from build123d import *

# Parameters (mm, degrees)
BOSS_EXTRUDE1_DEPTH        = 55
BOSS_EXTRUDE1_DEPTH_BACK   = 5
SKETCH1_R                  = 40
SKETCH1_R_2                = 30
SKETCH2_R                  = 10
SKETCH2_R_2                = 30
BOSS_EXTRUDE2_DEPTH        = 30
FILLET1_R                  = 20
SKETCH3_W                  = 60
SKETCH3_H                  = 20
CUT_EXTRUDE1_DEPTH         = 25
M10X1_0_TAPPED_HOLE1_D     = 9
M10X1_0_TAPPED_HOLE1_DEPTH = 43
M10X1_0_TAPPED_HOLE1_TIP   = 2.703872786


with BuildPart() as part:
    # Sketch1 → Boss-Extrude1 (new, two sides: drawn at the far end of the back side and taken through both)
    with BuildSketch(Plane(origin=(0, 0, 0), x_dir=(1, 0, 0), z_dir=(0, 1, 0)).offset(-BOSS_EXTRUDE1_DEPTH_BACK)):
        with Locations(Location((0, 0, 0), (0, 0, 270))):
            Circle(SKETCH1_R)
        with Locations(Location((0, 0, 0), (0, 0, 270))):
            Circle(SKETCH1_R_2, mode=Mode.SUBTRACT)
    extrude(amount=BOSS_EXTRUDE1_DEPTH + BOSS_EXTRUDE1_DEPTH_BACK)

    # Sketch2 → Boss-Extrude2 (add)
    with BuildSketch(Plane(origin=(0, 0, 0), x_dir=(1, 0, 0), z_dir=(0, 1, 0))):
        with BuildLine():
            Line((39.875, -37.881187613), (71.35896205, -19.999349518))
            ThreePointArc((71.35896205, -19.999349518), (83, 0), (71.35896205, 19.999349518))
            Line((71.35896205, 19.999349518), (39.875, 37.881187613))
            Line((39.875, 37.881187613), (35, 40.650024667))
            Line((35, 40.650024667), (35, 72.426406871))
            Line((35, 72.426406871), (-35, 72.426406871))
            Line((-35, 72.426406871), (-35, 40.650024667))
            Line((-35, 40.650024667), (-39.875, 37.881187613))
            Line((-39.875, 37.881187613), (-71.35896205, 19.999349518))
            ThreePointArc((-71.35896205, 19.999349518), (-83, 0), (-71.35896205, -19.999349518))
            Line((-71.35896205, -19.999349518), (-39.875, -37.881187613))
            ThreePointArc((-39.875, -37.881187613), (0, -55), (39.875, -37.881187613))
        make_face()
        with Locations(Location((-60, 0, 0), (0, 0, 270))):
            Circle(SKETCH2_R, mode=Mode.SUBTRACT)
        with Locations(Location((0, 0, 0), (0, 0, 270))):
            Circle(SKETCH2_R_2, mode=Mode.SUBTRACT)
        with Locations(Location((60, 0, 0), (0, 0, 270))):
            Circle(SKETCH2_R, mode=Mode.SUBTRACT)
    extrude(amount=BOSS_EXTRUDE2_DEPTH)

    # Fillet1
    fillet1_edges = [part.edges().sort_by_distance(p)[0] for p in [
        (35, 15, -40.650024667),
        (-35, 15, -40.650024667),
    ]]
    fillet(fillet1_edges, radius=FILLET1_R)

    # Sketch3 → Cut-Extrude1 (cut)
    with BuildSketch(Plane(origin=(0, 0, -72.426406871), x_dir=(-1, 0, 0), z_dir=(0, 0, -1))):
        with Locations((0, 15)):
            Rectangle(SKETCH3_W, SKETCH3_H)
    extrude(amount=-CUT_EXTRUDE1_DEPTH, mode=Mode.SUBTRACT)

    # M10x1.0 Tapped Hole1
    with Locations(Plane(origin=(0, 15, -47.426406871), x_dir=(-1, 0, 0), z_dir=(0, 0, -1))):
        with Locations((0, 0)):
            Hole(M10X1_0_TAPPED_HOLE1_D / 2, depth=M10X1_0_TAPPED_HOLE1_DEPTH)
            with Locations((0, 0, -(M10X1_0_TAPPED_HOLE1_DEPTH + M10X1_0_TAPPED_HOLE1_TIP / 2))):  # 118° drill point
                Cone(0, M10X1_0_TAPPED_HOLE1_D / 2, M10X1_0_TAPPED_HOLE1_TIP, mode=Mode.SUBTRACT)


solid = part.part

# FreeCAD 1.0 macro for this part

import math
import FreeCAD as App
import Part
import Sketcher

V = App.Vector
Q = App.Units.Quantity


def edges_at(feature, points):
    """Names of the edges that pass closest to the given points."""
    edges = feature.Shape.Edges
    near = lambda p: min(range(len(edges)), key=lambda i: edges[i].distToShape(Part.Vertex(*p))[0])
    return sorted({f"Edge{near(p) + 1}" for p in points})


def add_polygon(sketch, points):
    """Adds a closed chain of lines whose ends are joined by coincident constraints."""
    first, n = sketch.GeometryCount, len(points)
    for a, b in zip(points, points[1:] + points[:1]):
        sketch.addGeometry(Part.LineSegment(App.Vector(*a, 0), App.Vector(*b, 0)), False)
    for i in range(n):
        sketch.addConstraint(Sketcher.Constraint("Coincident", first + i, 2, first + (i + 1) % n, 1))

doc = App.newDocument("Part")
body = doc.addObject("PartDesign::Body", "Body")

# Sketch on XZ plane
sketch1 = doc.addObject("Sketcher::SketchObject", "Sketch")
body.addObject(sketch1)
sketch1.AttachmentSupport = (doc.XZ_Plane, [""])
sketch1.MapMode = "FlatFace"
sketch1.addGeometry([
    Part.Circle(V(0, 0, 0), V(0, 0, 1), 40),
    Part.Circle(V(0, 0, 0), V(0, 0, 1), 30),
], False)
sketch1.addConstraint([
    Sketcher.Constraint("Coincident", 0, 3, -1, 1),
    Sketcher.Constraint("Coincident", 1, 3, -1, 1),
    Sketcher.Constraint("Diameter", 0, Q("80 mm")),
    Sketcher.Constraint("Diameter", 1, Q("60 mm")),
])
pad1 = doc.addObject("PartDesign::Pad", "Pad")
body.addObject(pad1)
pad1.Profile = sketch1
pad1.Type = "TwoLengths"
pad1.Length = 55
pad1.Length2 = 5
pad1.Reversed = True

# Sketch on XZ plane
sketch2 = doc.addObject("Sketcher::SketchObject", "Sketch001")
body.addObject(sketch2)
sketch2.AttachmentSupport = (doc.XZ_Plane, [""])
sketch2.MapMode = "FlatFace"
sketch2.addGeometry([
    Part.LineSegment(V(39.875, 37.881188, 0), V(71.358962, 19.99935, 0)),  # 0
    Part.ArcOfCircle(Part.Circle(V(60, 0, 0), V(0, 0, 1), 23), math.radians(-60.404873), math.radians(60.404873)),  # 1
    Part.LineSegment(V(71.358962, -19.99935, 0), V(39.875, -37.881188, 0)),  # 2
    Part.LineSegment(V(39.875, -37.881188, 0), V(35, -40.650025, 0)),  # 3
    Part.LineSegment(V(35, -40.650025, 0), V(35, -72.426407, 0)),  # 4
    Part.LineSegment(V(35, -72.426407, 0), V(-35, -72.426407, 0)),  # 5
    Part.LineSegment(V(-35, -72.426407, 0), V(-35, -40.650025, 0)),  # 6
    Part.LineSegment(V(-35, -40.650025, 0), V(-39.875, -37.881188, 0)),  # 7
    Part.LineSegment(V(-39.875, -37.881188, 0), V(-71.358962, -19.99935, 0)),  # 8
    Part.ArcOfCircle(Part.Circle(V(-60, 0, 0), V(0, 0, 1), 23), math.radians(119.595127), math.radians(240.404873)),  # 9
    Part.LineSegment(V(-71.358962, 19.99935, 0), V(-39.875, 37.881188, 0)),  # 10
    Part.ArcOfCircle(Part.Circle(V(0, 0, 0), V(0, 0, 1), 55), math.radians(43.531152), math.radians(136.468848)),  # 11
    Part.Circle(V(-60, 0, 0), V(0, 0, 1), 10),  # 12
    Part.Circle(V(0, 0, 0), V(0, 0, 1), 30),  # 13
    Part.Circle(V(60, 0, 0), V(0, 0, 1), 10),  # 14
], False)
sketch2.addConstraint([
    Sketcher.Constraint("Tangent", 0, 2, 1, 2),
    Sketcher.Constraint("Tangent", 1, 1, 2, 1),
    Sketcher.Constraint("Coincident", 2, 2, 3, 1),
    Sketcher.Constraint("Coincident", 3, 2, 4, 1),
    Sketcher.Constraint("Coincident", 4, 2, 5, 1),
    Sketcher.Constraint("Coincident", 5, 2, 6, 1),
    Sketcher.Constraint("Coincident", 6, 2, 7, 1),
    Sketcher.Constraint("Coincident", 7, 2, 8, 1),
    Sketcher.Constraint("Tangent", 8, 2, 9, 2),
    Sketcher.Constraint("Tangent", 9, 1, 10, 1),
    Sketcher.Constraint("Coincident", 10, 2, 11, 2),
    Sketcher.Constraint("Coincident", 11, 1, 0, 1),
    Sketcher.Constraint("Vertical", 4),
    Sketcher.Constraint("Horizontal", 5),
    Sketcher.Constraint("Vertical", 6),
    Sketcher.Constraint("Coincident", 11, 3, -1, 1),
    Sketcher.Constraint("Coincident", 13, 3, -1, 1),
    Sketcher.Constraint("Coincident", 12, 3, 9, 3),
    Sketcher.Constraint("Coincident", 14, 3, 1, 3),
    Sketcher.Constraint("Equal", 1, 9),
    Sketcher.Constraint("Equal", 12, 14),
    Sketcher.Constraint("Symmetric", 1, 3, 9, 3, -1, 1),
    Sketcher.Constraint("Symmetric", 2, 2, 10, 2, -1, 1),
    Sketcher.Constraint("Symmetric", 7, 2, 11, 1, -1, 1),
    Sketcher.Constraint("Symmetric", 3, 2, 6, 2, -2),
    Sketcher.Constraint("Symmetric", 1, 1, 8, 2, -2),
    Sketcher.Constraint("Parallel", 2, 3),
    Sketcher.Constraint("Diameter", 12, Q("20 mm")),
    Sketcher.Constraint("Diameter", 13, Q("60 mm")),
    Sketcher.Constraint("Radius", 1, Q("23 mm")),
    Sketcher.Constraint("Radius", 11, Q("55 mm")),
    Sketcher.Constraint("DistanceX", 5, 2, 5, 1, Q("70 mm")),
    Sketcher.Constraint("DistanceX", -1, 1, 1, 3, Q("60 mm")),
    Sketcher.Constraint("DistanceX", -1, 1, 2, 2, Q("39.875 mm")),
    Sketcher.Constraint("DistanceY", 4, 2, 4, 1, Q("31.776382 mm")),
])
pad2 = doc.addObject("PartDesign::Pad", "Pad001")
body.addObject(pad2)
pad2.Profile = sketch2
pad2.Length = 30
pad2.Reversed = True
doc.recompute()

fillet = doc.addObject("PartDesign::Fillet", "Fillet")
body.addObject(fillet)
fillet.Base = (pad2, edges_at(pad2, [(35, 15, -40.65), (-35, 15, -40.65)]))
fillet.Radius = 20

# Sketch on XY plane
sketch3 = doc.addObject("Sketcher::SketchObject", "Sketch002")
body.addObject(sketch3)
sketch3.AttachmentSupport = (doc.XY_Plane, [""])
sketch3.MapMode = "FlatFace"
sketch3.AttachmentOffset = App.Placement(V(0, 0, -72.426407), App.Rotation())
add_polygon(sketch3, [(30, 25), (30, 5), (-30, 5), (-30, 25)])  # lines 0-3
sketch3.addConstraint([
    Sketcher.Constraint("Vertical", 0),
    Sketcher.Constraint("Horizontal", 1),
    Sketcher.Constraint("Vertical", 2),
    Sketcher.Constraint("Horizontal", 3),
    Sketcher.Constraint("DistanceX", 1, 2, 1, 1, Q("60 mm")),
    Sketcher.Constraint("DistanceY", 0, 2, 0, 1, Q("20 mm")),
    Sketcher.Constraint("DistanceX", -1, 1, 0, 2, Q("30 mm")),
    Sketcher.Constraint("DistanceY", -1, 1, 0, 2, Q("5 mm")),
])
pocket1 = doc.addObject("PartDesign::Pocket", "Pocket")
body.addObject(pocket1)
pocket1.Profile = sketch3
pocket1.Length = 25
pocket1.Reversed = True

# Sketch on XY plane
sketch4 = doc.addObject("Sketcher::SketchObject", "Sketch003")
body.addObject(sketch4)
sketch4.AttachmentSupport = (doc.XY_Plane, [""])
sketch4.MapMode = "FlatFace"
sketch4.AttachmentOffset = App.Placement(V(0, 0, -47.426407), App.Rotation())
sketch4.addGeometry(Part.Circle(V(0, 15, 0), V(0, 0, 1), 4.5), False)
sketch4.addConstraint([
    Sketcher.Constraint("PointOnObject", 0, 3, -2),
    Sketcher.Constraint("Diameter", 0, Q("9 mm")),
    Sketcher.Constraint("DistanceY", -1, 1, 0, 3, Q("15 mm")),
])
doc.recompute()
hole = doc.addObject("PartDesign::Hole", "Hole")
body.addObject(hole)
hole.Profile = sketch4
hole.ThreadType = "None"
hole.Diameter = 9
hole.DepthType = "Dimension"
hole.Depth = 43
hole.DrillPoint = "Angled"
hole.DrillPointAngle = 118
hole.Reversed = True

doc.recompute()
